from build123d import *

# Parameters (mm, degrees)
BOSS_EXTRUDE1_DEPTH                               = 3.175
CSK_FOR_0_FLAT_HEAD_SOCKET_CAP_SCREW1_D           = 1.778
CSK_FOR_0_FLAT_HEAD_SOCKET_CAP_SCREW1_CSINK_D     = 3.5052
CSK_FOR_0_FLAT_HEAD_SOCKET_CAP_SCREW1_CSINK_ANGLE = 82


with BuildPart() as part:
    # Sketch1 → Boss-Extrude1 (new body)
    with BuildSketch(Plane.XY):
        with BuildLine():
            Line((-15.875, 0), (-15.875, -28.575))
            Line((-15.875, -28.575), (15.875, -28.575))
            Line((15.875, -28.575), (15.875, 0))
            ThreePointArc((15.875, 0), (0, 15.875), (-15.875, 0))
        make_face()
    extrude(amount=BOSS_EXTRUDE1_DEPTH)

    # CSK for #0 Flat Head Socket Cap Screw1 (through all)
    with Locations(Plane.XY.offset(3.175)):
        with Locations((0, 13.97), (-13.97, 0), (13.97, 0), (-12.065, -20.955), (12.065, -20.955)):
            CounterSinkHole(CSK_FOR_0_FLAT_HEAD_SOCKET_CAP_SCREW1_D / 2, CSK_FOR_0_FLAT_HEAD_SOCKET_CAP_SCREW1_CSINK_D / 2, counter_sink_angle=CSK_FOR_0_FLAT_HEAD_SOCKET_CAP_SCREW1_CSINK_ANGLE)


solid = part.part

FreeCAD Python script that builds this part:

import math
import FreeCAD as App
import Part
import Sketcher

V = App.Vector
Q = App.Units.Quantity

doc = App.newDocument("Part")
body = doc.addObject("PartDesign::Body", "Body")

# Sketch on XY plane
sketch1 = body.newObject("Sketcher::SketchObject", "Sketch")
sketch1.AttachmentSupport = (doc.getObject("XY_Plane"), [""])
sketch1.MapMode = "FlatFace"
sketch1.addGeometry([
    Part.LineSegment(V(-15.875, 0, 0), V(-15.875, -28.575, 0)),
    Part.LineSegment(V(-15.875, -28.575, 0), V(15.875, -28.575, 0)),
    Part.LineSegment(V(15.875, -28.575, 0), V(15.875, 0, 0)),
    Part.ArcOfCircle(Part.Circle(V(0, 0, 0), V(0, 0, 1), 15.875), math.radians(0), math.radians(180)),
], False)
sketch1.addConstraint([
    Sketcher.Constraint("Coincident", 0, 2, 1, 1),
    Sketcher.Constraint("Coincident", 1, 2, 2, 1),
    Sketcher.Constraint("Tangent", 2, 2, 3, 1),
    Sketcher.Constraint("Tangent", 3, 2, 0, 1),
    Sketcher.Constraint("Vertical", 0),
    Sketcher.Constraint("Horizontal", 1),
    Sketcher.Constraint("Vertical", 2),
    Sketcher.Constraint("Coincident", 3, 3, -1, 1),
    Sketcher.Constraint("Radius", 3, Q("0.625 in")),
    Sketcher.Constraint("DistanceY", 0, 2, 0, 1, Q("1.125 in")),
])
pad1 = body.newObject("PartDesign::Pad", "Pad")
pad1.Profile = sketch1
pad1.Length = Q("0.125 in")

# Sketch on XY plane
sketch2 = body.newObject("Sketcher::SketchObject", "Sketch001")
sketch2.AttachmentSupport = (doc.getObject("XY_Plane"), [""])
sketch2.MapMode = "FlatFace"
sketch2.AttachmentOffset = App.Placement(V(0, 0, 0.125 * 25.4), App.Rotation())
sketch2.addGeometry([
    Part.Circle(V(0, 13.97, 0), V(0, 0, 1), 0.889),  # 0
    Part.Circle(V(-13.97, 0, 0), V(0, 0, 1), 0.889),  # 1
    Part.Circle(V(13.97, 0, 0), V(0, 0, 1), 0.889),  # 2
    Part.Circle(V(-12.065, -20.955, 0), V(0, 0, 1), 0.889),  # 3
    Part.Circle(V(12.065, -20.955, 0), V(0, 0, 1), 0.889),  # 4
], False)
sketch2.addConstraint([
    Sketcher.Constraint("Equal", 0, 1),
    Sketcher.Constraint("Equal", 1, 2),
    Sketcher.Constraint("Equal", 2, 3),
    Sketcher.Constraint("Equal", 3, 4),
    Sketcher.Constraint("Symmetric", 1, 3, 2, 3, -1, 1),
    Sketcher.Constraint("Symmetric", 3, 3, 4, 3, -2),
    Sketcher.Constraint("PointOnObject", 0, 3, -2),
    Sketcher.Constraint("PointOnObject", 1, 3, -1),
    Sketcher.Constraint("Diameter", 0, Q("0.07 in")),
    Sketcher.Constraint("DistanceX", 1, 3, 2, 3, Q("1.1 in")),
    Sketcher.Constraint("DistanceY", -1, 1, 0, 3, Q("0.55 in")),
    Sketcher.Constraint("DistanceX", 3, 3, 4, 3, Q("0.95 in")),
    Sketcher.Constraint("DistanceY", 3, 3, -1, 1, Q("0.825 in")),
])
doc.recompute()
hole = body.newObject("PartDesign::Hole", "Hole")
hole.Profile = sketch2
hole.ThreadType = "None"
hole.Diameter = Q("0.07 in")
hole.DepthType = "ThroughAll"
hole.HoleCutType = "Countersink"
hole.HoleCutDiameter = Q("0.138 in")
hole.HoleCutCountersinkAngle = 82

doc.recompute()
